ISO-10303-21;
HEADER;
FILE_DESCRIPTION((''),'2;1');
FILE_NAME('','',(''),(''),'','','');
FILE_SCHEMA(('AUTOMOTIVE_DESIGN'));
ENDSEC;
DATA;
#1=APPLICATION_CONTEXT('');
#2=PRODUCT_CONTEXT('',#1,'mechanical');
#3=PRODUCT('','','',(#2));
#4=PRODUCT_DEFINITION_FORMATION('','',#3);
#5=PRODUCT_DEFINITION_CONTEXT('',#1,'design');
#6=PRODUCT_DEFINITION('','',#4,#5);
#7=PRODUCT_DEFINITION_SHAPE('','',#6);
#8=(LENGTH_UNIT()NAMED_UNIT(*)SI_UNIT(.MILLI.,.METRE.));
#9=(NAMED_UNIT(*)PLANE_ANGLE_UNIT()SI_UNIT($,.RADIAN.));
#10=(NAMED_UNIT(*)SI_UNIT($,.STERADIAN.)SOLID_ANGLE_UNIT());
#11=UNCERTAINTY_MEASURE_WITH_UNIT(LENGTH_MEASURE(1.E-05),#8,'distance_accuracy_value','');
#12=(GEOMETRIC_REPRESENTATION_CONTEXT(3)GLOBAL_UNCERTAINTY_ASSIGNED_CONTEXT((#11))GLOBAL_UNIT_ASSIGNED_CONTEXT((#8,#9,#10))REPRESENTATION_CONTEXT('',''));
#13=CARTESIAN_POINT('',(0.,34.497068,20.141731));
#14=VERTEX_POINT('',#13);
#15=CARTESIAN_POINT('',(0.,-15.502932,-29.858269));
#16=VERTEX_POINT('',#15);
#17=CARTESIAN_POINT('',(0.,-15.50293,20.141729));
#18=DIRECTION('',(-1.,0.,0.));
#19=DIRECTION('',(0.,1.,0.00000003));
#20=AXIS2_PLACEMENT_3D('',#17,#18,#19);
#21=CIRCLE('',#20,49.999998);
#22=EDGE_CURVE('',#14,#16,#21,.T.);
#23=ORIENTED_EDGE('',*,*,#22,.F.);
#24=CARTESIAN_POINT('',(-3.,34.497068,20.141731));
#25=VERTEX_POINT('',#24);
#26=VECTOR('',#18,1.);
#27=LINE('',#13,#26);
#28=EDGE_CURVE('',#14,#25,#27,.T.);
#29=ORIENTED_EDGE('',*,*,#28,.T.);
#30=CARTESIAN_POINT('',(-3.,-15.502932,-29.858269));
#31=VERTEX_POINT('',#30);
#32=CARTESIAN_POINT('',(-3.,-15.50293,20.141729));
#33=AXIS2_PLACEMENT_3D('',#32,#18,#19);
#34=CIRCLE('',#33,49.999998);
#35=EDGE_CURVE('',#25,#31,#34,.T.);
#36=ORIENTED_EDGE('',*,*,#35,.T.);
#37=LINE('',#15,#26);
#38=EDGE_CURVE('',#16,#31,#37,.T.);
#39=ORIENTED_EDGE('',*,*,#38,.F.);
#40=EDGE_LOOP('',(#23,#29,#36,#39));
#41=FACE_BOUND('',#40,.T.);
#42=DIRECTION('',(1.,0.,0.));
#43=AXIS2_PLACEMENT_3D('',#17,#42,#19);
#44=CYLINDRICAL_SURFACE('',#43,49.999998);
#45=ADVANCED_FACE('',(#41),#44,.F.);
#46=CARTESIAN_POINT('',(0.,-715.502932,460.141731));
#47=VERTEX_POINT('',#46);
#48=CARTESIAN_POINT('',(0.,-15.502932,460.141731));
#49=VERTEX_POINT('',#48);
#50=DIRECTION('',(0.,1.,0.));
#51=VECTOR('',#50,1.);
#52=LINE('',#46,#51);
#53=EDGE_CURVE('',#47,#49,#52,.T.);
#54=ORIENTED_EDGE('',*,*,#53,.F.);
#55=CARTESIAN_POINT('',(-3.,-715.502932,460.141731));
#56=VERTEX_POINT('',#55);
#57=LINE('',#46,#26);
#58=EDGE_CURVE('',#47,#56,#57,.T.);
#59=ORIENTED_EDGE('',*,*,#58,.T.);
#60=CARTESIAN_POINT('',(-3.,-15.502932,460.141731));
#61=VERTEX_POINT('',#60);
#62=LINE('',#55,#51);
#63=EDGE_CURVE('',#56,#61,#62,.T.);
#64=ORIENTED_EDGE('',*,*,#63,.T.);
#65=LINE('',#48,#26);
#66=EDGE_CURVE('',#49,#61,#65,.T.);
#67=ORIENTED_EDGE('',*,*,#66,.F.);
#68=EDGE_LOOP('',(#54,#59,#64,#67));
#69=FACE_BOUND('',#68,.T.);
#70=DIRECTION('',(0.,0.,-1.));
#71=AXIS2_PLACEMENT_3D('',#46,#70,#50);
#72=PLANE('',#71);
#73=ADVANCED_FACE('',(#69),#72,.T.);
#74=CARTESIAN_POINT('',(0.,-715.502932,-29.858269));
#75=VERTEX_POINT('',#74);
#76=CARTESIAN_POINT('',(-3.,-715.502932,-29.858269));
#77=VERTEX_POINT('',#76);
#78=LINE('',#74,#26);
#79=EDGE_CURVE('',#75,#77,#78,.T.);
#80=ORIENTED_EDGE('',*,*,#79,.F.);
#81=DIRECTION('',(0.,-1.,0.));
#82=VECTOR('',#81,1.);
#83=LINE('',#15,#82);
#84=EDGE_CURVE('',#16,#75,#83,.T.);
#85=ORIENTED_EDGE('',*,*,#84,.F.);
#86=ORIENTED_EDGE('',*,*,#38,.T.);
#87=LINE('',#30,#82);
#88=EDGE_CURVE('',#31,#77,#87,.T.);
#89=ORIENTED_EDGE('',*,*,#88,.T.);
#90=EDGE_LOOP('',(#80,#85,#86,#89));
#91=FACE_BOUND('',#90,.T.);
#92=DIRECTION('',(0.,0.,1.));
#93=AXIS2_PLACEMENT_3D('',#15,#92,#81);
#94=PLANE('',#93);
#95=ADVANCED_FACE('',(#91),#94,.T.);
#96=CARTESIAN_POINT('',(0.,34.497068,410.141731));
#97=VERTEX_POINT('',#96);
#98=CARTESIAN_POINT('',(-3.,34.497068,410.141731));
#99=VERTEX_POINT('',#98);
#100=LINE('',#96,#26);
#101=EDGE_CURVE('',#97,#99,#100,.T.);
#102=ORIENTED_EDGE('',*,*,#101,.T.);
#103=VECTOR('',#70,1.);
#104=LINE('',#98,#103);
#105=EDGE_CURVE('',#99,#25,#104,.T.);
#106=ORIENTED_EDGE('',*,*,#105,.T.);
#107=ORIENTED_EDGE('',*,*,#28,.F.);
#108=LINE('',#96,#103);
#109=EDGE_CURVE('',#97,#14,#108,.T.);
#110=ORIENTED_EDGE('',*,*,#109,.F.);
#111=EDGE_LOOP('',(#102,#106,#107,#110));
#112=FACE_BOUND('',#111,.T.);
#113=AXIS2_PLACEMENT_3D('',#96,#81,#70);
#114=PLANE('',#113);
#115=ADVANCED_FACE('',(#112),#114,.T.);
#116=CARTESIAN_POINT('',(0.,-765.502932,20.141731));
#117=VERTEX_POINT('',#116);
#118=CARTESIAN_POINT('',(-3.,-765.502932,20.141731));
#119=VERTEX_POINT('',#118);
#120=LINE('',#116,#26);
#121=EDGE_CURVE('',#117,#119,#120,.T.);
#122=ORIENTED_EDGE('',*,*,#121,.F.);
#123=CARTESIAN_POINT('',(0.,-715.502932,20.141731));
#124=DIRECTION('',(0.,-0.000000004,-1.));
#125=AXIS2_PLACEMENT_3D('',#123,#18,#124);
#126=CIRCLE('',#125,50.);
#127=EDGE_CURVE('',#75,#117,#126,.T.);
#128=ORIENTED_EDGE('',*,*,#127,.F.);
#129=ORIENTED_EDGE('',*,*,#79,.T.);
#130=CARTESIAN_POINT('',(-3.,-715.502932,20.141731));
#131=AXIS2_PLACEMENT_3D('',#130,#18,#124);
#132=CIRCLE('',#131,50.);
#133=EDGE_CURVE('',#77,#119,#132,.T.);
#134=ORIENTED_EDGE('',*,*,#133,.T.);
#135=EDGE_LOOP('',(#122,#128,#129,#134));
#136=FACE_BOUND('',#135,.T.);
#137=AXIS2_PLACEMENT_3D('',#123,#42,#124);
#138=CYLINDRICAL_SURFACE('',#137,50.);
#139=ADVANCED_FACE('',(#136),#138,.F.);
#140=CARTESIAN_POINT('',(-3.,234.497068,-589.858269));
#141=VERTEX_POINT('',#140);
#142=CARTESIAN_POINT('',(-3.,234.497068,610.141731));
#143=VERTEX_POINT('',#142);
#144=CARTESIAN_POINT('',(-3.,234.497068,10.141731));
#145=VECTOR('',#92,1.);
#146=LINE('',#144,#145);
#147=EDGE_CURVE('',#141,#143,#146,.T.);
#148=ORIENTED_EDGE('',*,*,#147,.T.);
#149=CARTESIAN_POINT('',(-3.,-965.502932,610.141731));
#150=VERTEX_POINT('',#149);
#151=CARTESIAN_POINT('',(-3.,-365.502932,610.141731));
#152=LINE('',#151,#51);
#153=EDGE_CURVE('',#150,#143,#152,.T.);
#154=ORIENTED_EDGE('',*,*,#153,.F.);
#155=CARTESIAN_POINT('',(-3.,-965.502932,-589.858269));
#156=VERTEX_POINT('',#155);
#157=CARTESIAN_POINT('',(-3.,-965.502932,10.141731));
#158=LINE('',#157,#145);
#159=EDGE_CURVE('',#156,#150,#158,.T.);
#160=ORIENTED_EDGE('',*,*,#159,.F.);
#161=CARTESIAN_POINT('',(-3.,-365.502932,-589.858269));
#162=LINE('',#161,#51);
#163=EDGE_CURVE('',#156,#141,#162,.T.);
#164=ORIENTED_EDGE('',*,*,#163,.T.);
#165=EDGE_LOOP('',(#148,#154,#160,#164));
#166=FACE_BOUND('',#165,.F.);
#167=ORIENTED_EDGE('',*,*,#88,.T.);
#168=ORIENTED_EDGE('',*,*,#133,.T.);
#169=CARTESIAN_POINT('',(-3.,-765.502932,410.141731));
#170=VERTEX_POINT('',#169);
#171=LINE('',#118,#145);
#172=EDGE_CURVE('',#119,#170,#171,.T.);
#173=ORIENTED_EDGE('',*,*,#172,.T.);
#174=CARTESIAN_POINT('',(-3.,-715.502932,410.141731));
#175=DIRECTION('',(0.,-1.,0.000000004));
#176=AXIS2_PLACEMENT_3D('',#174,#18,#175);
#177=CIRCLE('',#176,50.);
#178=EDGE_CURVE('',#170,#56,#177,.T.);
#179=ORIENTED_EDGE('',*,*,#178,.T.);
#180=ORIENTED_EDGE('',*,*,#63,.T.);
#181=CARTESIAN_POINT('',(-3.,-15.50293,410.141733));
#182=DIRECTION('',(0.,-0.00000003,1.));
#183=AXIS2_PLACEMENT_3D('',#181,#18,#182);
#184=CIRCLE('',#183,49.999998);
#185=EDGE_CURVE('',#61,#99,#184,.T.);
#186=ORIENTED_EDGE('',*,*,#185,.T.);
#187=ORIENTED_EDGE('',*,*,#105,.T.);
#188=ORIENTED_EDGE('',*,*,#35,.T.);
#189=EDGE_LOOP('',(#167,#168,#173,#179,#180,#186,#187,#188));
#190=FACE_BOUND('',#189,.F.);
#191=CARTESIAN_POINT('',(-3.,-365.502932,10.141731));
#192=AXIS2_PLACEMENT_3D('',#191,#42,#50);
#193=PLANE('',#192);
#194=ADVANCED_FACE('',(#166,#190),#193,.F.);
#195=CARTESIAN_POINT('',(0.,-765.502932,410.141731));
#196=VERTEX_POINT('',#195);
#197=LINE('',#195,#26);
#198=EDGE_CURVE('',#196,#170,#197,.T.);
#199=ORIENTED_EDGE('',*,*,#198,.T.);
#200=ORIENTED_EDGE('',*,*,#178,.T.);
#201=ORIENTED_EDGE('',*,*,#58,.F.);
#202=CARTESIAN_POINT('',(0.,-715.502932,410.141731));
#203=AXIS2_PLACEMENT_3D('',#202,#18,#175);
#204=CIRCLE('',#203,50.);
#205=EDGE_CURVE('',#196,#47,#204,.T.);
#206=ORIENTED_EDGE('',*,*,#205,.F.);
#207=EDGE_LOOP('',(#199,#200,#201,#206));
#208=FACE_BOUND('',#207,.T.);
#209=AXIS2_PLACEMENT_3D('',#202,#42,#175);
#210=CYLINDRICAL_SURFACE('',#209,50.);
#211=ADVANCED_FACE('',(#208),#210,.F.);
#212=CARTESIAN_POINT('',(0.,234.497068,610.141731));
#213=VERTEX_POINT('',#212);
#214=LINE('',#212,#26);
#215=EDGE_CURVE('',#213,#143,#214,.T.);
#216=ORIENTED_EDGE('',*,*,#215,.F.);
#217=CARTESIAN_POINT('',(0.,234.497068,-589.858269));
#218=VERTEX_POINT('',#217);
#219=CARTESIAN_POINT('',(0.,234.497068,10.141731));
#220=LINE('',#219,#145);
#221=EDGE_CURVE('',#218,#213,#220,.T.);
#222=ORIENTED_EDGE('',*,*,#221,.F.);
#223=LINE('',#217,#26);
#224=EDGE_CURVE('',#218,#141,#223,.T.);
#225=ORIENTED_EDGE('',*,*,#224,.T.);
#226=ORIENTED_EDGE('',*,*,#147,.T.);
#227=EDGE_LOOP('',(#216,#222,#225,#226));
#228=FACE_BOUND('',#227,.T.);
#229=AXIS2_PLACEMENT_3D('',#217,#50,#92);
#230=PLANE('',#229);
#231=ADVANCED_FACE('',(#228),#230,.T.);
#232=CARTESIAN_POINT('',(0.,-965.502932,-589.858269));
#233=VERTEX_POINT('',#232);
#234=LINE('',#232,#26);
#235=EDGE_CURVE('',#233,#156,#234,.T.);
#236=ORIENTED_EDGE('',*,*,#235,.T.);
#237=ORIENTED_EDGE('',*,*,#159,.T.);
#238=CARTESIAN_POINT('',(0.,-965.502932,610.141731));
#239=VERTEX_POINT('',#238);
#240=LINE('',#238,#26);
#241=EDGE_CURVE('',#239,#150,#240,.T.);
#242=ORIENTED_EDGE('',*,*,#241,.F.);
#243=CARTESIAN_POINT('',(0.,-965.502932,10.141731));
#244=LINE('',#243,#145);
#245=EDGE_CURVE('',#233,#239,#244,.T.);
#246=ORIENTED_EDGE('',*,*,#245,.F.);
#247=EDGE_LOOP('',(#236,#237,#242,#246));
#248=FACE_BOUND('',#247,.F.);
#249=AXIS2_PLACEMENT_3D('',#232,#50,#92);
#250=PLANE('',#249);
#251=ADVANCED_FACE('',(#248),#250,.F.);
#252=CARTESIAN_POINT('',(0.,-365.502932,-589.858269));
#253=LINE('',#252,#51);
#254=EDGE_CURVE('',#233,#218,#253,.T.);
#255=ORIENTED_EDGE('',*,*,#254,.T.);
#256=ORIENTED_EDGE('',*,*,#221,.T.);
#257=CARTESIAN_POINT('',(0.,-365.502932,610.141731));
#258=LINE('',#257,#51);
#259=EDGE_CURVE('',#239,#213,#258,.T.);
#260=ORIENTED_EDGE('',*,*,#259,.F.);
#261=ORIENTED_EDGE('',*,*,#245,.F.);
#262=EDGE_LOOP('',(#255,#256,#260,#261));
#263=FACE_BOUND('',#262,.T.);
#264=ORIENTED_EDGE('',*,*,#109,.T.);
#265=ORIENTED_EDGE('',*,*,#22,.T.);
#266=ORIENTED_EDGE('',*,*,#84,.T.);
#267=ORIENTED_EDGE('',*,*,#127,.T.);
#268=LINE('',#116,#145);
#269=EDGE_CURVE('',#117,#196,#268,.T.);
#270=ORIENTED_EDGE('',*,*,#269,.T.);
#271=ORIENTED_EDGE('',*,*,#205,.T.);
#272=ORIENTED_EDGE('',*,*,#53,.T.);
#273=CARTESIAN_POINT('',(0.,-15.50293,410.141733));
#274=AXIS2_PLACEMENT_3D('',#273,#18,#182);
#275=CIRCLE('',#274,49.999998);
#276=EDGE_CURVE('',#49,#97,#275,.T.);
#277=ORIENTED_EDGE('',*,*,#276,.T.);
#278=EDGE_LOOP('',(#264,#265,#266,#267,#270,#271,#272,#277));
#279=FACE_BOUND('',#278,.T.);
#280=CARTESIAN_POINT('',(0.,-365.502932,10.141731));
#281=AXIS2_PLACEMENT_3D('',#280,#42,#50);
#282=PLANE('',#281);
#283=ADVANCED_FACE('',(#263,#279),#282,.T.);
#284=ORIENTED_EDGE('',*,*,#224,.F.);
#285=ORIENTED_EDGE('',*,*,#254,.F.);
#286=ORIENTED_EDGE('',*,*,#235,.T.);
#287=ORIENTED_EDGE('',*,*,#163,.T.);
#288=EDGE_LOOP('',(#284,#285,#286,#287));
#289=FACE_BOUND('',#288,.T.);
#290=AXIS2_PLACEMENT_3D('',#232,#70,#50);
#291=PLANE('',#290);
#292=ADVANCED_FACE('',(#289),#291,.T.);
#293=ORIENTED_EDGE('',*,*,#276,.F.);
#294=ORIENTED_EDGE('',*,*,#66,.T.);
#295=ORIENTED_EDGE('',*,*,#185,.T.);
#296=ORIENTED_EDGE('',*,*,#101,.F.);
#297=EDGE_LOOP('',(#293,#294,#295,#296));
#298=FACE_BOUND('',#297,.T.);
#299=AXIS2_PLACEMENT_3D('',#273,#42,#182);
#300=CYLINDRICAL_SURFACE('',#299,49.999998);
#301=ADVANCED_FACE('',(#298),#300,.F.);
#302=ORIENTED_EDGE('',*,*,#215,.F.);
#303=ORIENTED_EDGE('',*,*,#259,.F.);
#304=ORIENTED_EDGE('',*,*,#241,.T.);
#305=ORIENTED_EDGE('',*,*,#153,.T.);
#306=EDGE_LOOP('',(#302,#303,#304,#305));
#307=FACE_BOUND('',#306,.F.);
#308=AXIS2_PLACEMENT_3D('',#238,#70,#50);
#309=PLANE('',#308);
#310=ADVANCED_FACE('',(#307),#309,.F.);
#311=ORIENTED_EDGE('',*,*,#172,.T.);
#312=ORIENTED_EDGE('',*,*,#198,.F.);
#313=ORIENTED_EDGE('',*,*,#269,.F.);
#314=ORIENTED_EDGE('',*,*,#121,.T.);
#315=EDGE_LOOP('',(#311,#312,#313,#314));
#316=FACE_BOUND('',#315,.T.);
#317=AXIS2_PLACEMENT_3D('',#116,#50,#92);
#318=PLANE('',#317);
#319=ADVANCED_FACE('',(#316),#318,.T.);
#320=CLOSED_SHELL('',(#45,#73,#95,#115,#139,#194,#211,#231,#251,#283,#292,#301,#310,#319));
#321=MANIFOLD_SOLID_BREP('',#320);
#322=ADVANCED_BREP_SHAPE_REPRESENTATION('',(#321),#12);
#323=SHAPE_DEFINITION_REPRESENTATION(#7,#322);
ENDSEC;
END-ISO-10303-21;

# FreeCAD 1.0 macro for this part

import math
import FreeCAD as App
import Part
import Sketcher

V = App.Vector


def add_polygon(sketch, points):
    """Adds a closed chain of lines whose ends are joined by coincident constraints."""
    first, n = sketch.GeometryCount, len(points)
    for a, b in zip(points, points[1:] + points[:1]):
        sketch.addGeometry(Part.LineSegment(App.Vector(*a, 0), App.Vector(*b, 0)), False)
    for i in range(n):
        sketch.addConstraint(Sketcher.Constraint("Coincident", first + i, 2, first + (i + 1) % n, 1))

doc = App.newDocument("Part")
params = doc.addObject("Spreadsheet::Sheet", "Params")
for row, (alias, value) in enumerate([
    ("sketch1_radius", "50 mm"),
    ("sketch1_width", "1200 mm"),
    ("sketch1_width2", "700 mm"),
    ("sketch1_height", "390 mm"),
    ("pad1_length", "3 mm"),
], start=1):
    params.set(f"A{row}", alias)
    params.set(f"B{row}", "=" + value)
    params.setAlias(f"B{row}", alias)

body = doc.addObject("PartDesign::Body", "Body")

# Sketch on YZ plane
sketch1 = doc.addObject("Sketcher::SketchObject", "Sketch")
body.addObject(sketch1)
sketch1.AttachmentSupport = (doc.YZ_Plane, [""])
sketch1.MapMode = "FlatFace"
add_polygon(sketch1, [(-966, 610), (-966, -590), (234, -590), (234, 610)])  # lines 0-3
sketch1.addGeometry(Part.LineSegment(V(-766, 20, 0), V(-766, 410, 0)), False)  # 4
sketch1.addGeometry(Part.ArcOfCircle(Part.Circle(V(-716, 410, 0), V(0, 0, 1), 50), math.radians(90), math.radians(180)), False)  # 5
sketch1.addGeometry(Part.LineSegment(V(-716, 460, 0), V(-16, 460, 0)), False)  # 6
sketch1.addGeometry(Part.ArcOfCircle(Part.Circle(V(-16, 410, 0), V(0, 0, 1), 50), math.radians(0), math.radians(90)), False)  # 7
sketch1.addGeometry(Part.LineSegment(V(34, 410, 0), V(34, 20, 0)), False)  # 8
sketch1.addGeometry(Part.ArcOfCircle(Part.Circle(V(-16, 20, 0), V(0, 0, 1), 50), math.radians(-90), math.radians(0)), False)  # 9
sketch1.addGeometry(Part.LineSegment(V(-16, -30, 0), V(-716, -30, 0)), False)  # 10
sketch1.addGeometry(Part.ArcOfCircle(Part.Circle(V(-716, 20, 0), V(0, 0, 1), 50), math.radians(-180), math.radians(-90)), False)  # 11
sketch1.addConstraint(Sketcher.Constraint("Tangent", 4, 2, 5, 2))
sketch1.addConstraint(Sketcher.Constraint("Tangent", 5, 1, 6, 1))
sketch1.addConstraint(Sketcher.Constraint("Tangent", 6, 2, 7, 2))
sketch1.addConstraint(Sketcher.Constraint("Tangent", 7, 1, 8, 1))
sketch1.addConstraint(Sketcher.Constraint("Tangent", 8, 2, 9, 2))
sketch1.addConstraint(Sketcher.Constraint("Tangent", 9, 1, 10, 1))
sketch1.addConstraint(Sketcher.Constraint("Tangent", 10, 2, 11, 2))
sketch1.addConstraint(Sketcher.Constraint("Tangent", 11, 1, 4, 1))
sketch1.addConstraint(Sketcher.Constraint("Vertical", 0))
sketch1.addConstraint(Sketcher.Constraint("Horizontal", 1))
sketch1.addConstraint(Sketcher.Constraint("Vertical", 2))
sketch1.addConstraint(Sketcher.Constraint("Horizontal", 3))
sketch1.addConstraint(Sketcher.Constraint("Vertical", 4))
sketch1.addConstraint(Sketcher.Constraint("Horizontal", 6))
sketch1.addConstraint(Sketcher.Constraint("Vertical", 8))
sketch1.addConstraint(Sketcher.Constraint("Horizontal", 10))
sketch1.addConstraint(Sketcher.Constraint("Equal", 5, 7))
sketch1.addConstraint(Sketcher.Constraint("Equal", 7, 9))
sketch1.addConstraint(Sketcher.Constraint("Equal", 9, 11))
sketch1.addConstraint(Sketcher.Constraint("Equal", 3, 0))
sketch1.addConstraint(Sketcher.Constraint("Radius", 5, 50.0))
sketch1.addConstraint(Sketcher.Constraint("DistanceX", 1, 1, 1, 2, 1200.0))
sketch1.addConstraint(Sketcher.Constraint("DistanceX", 6, 1, 6, 2, 700.0))
sketch1.addConstraint(Sketcher.Constraint("DistanceY", 4, 1, 4, 2, 390.0))
sketch1.addConstraint(Sketcher.Constraint("DistanceX", 0, 2, 11, 3, 250.0))
sketch1.addConstraint(Sketcher.Constraint("DistanceY", 0, 2, 11, 3, 610.0))
sketch1.addConstraint(Sketcher.Constraint("DistanceX", 5, 3, -1, 1, 715.502932))
sketch1.addConstraint(Sketcher.Constraint("DistanceY", -1, 1, 5, 3, 410.141731))
sketch1.setExpression("Constraints[24]", "Params.sketch1_radius")
sketch1.setExpression("Constraints[25]", "Params.sketch1_width")
sketch1.setExpression("Constraints[26]", "Params.sketch1_width2")
sketch1.setExpression("Constraints[27]", "Params.sketch1_height")
pad1 = doc.addObject("PartDesign::Pad", "Pad")
body.addObject(pad1)
pad1.Profile = sketch1
pad1.setExpression("Length", "Params.pad1_length")
pad1.Reversed = True

doc.recompute()
